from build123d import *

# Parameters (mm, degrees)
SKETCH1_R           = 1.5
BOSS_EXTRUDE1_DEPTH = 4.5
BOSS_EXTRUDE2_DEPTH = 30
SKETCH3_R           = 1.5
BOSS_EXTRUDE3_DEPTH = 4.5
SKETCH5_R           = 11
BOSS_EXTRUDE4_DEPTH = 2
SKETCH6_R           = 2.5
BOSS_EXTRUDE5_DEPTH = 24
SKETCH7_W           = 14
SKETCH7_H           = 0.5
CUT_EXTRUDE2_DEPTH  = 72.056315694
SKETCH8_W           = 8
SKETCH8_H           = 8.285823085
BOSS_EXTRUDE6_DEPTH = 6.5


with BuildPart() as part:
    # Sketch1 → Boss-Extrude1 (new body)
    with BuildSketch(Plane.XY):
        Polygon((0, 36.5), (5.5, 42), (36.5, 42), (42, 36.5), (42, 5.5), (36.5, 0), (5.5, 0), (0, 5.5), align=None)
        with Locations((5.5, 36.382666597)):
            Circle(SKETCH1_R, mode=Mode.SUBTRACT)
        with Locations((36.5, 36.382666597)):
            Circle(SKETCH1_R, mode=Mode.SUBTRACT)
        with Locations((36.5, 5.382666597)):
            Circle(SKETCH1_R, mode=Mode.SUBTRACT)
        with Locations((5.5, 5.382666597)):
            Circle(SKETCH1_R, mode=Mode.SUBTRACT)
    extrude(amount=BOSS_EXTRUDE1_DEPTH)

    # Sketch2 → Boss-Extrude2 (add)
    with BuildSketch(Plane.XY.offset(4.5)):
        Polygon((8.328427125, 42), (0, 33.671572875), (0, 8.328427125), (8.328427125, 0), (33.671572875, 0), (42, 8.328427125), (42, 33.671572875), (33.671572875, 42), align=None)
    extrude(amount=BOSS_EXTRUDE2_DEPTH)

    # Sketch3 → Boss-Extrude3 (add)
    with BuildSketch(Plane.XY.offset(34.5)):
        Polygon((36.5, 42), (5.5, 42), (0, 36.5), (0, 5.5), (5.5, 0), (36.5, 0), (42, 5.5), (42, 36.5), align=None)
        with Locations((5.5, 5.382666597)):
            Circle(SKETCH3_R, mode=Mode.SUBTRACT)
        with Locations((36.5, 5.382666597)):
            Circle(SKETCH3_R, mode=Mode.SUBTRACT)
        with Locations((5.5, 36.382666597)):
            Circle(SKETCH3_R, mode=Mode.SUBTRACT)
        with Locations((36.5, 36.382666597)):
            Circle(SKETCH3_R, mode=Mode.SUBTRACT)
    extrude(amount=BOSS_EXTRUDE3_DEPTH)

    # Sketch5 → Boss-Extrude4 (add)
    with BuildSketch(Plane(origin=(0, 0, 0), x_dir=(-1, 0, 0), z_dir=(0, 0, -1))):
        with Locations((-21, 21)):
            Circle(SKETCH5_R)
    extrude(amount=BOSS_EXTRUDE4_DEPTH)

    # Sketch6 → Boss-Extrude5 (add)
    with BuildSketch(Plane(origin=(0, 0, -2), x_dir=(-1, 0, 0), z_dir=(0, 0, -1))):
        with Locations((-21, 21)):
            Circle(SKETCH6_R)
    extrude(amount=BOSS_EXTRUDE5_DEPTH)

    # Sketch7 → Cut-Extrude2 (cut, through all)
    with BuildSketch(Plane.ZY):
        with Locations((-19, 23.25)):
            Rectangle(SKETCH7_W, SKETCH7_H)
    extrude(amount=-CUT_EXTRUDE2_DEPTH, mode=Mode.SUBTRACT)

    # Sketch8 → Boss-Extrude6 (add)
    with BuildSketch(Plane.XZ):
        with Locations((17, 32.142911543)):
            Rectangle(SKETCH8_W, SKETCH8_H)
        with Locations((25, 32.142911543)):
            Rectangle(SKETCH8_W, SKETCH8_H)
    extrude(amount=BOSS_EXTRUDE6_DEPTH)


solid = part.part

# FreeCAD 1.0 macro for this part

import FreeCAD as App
import Part
import Sketcher

V = App.Vector

doc = App.newDocument("Part")
body = doc.addObject("PartDesign::Body", "Body")

# Sketch on XY plane
sketch1 = body.newObject("Sketcher::SketchObject", "Sketch")
sketch1.AttachmentSupport = (doc.getObject("XY_Plane"), [""])
sketch1.MapMode = "FlatFace"
sketch1.addGeometry(Part.LineSegment(V(5.5, 42, 0), V(0, 36.5, 0)), False)
sketch1.addGeometry(Part.LineSegment(V(0, 36.5, 0), V(0, 5.5, 0)), False)
sketch1.addGeometry(Part.LineSegment(V(0, 5.5, 0), V(5.5, 0, 0)), False)
sketch1.addGeometry(Part.LineSegment(V(5.5, 0, 0), V(36.5, 0, 0)), False)
sketch1.addGeometry(Part.LineSegment(V(36.5, 0, 0), V(42, 5.5, 0)), False)
sketch1.addGeometry(Part.LineSegment(V(42, 5.5, 0), V(42, 36.5, 0)), False)
sketch1.addGeometry(Part.LineSegment(V(42, 36.5, 0), V(36.5, 42, 0)), False)
sketch1.addGeometry(Part.LineSegment(V(36.5, 42, 0), V(5.5, 42, 0)), False)
sketch1.addGeometry(Part.Circle(V(36.5, 5.382667, 0), V(0, 0, 1), 1.5), False)
sketch1.addGeometry(Part.Circle(V(5.5, 5.382667, 0), V(0, 0, 1), 1.5), False)
sketch1.addGeometry(Part.Circle(V(36.5, 36.382667, 0), V(0, 0, 1), 1.5), False)
sketch1.addGeometry(Part.Circle(V(5.5, 36.382667, 0), V(0, 0, 1), 1.5), False)
sketch1.addConstraint(Sketcher.Constraint("Coincident", 0, 2, 1, 1))
sketch1.addConstraint(Sketcher.Constraint("Coincident", 1, 2, 2, 1))
sketch1.addConstraint(Sketcher.Constraint("Coincident", 2, 2, 3, 1))
sketch1.addConstraint(Sketcher.Constraint("Coincident", 3, 2, 4, 1))
sketch1.addConstraint(Sketcher.Constraint("Coincident", 4, 2, 5, 1))
sketch1.addConstraint(Sketcher.Constraint("Coincident", 5, 2, 6, 1))
sketch1.addConstraint(Sketcher.Constraint("Coincident", 6, 2, 7, 1))
sketch1.addConstraint(Sketcher.Constraint("Coincident", 7, 2, 0, 1))
sketch1.addConstraint(Sketcher.Constraint("Vertical", 1))
sketch1.addConstraint(Sketcher.Constraint("Horizontal", 3))
sketch1.addConstraint(Sketcher.Constraint("Vertical", 5))
sketch1.addConstraint(Sketcher.Constraint("Horizontal", 7))
sketch1.addConstraint(Sketcher.Constraint("Equal", 8, 9))
sketch1.addConstraint(Sketcher.Constraint("Equal", 9, 10))
sketch1.addConstraint(Sketcher.Constraint("Equal", 10, 11))
sketch1.addConstraint(Sketcher.Constraint("PointOnObject", 0, 2, -2))
sketch1.addConstraint(Sketcher.Constraint("PointOnObject", 2, 2, -1))
sketch1.addConstraint(Sketcher.Constraint("Perpendicular", 0, 2))
sketch1.addConstraint(Sketcher.Constraint("Perpendicular", 2, 4))
sketch1.addConstraint(Sketcher.Constraint("Perpendicular", 4, 6))
sketch1.addConstraint(Sketcher.Constraint("Horizontal", 8, 3, 9, 3))
sketch1.addConstraint(Sketcher.Constraint("Horizontal", 10, 3, 11, 3))
sketch1.addConstraint(Sketcher.Constraint("Horizontal", 1, 2, 4, 2))
sketch1.addConstraint(Sketcher.Constraint("Horizontal", 0, 2, 5, 2))
sketch1.addConstraint(Sketcher.Constraint("Vertical", 8, 3, 10, 3))
sketch1.addConstraint(Sketcher.Constraint("Vertical", 9, 3, 11, 3))
sketch1.addConstraint(Sketcher.Constraint("Vertical", 11, 3, 2, 2))
sketch1.addConstraint(Sketcher.Constraint("Vertical", 10, 3, 3, 2))
sketch1.addConstraint(Sketcher.Constraint("Vertical", 3, 2, 6, 2))
sketch1.addConstraint(Sketcher.Constraint("Vertical", 2, 2, 7, 2))
sketch1.addConstraint(Sketcher.Constraint("Equal", 7, 1))
sketch1.addConstraint(Sketcher.Constraint("Diameter", 8, 3.0))
sketch1.addConstraint(Sketcher.Constraint("DistanceX", 3, 1, 3, 2, 31.0))
sketch1.addConstraint(Sketcher.Constraint("DistanceX", -1, 1, 4, 2, 42.0))
sketch1.addConstraint(Sketcher.Constraint("DistanceY", 8, 3, 10, 3, 31.0))
sketch1.addConstraint(Sketcher.Constraint("DistanceY", -1, 1, 8, 3, 5.382667))
pad1 = body.newObject("PartDesign::Pad", "Pad")
pad1.Profile = sketch1
pad1.Length = 4.5

# Sketch on XY plane
sketch2 = body.newObject("Sketcher::SketchObject", "Sketch001")
sketch2.AttachmentSupport = (doc.getObject("XY_Plane"), [""])
sketch2.MapMode = "FlatFace"
sketch2.AttachmentOffset = App.Placement(V(0, 0, 4.5), App.Rotation())
sketch2.addGeometry(Part.LineSegment(V(8.328427, 42, 0), V(0, 33.671573, 0)), False)
sketch2.addGeometry(Part.LineSegment(V(0, 33.671573, 0), V(0, 8.328427, 0)), False)
sketch2.addGeometry(Part.LineSegment(V(0, 8.328427, 0), V(8.328427, 0, 0)), False)
sketch2.addGeometry(Part.LineSegment(V(8.328427, 0, 0), V(33.671573, 0, 0)), False)
sketch2.addGeometry(Part.LineSegment(V(33.671573, 0, 0), V(42, 8.328427, 0)), False)
sketch2.addGeometry(Part.LineSegment(V(42, 8.328427, 0), V(42, 33.671573, 0)), False)
sketch2.addGeometry(Part.LineSegment(V(42, 33.671573, 0), V(33.671573, 42, 0)), False)
sketch2.addGeometry(Part.LineSegment(V(33.671573, 42, 0), V(8.328427, 42, 0)), False)
sketch2.addConstraint(Sketcher.Constraint("Coincident", 0, 2, 1, 1))
sketch2.addConstraint(Sketcher.Constraint("Coincident", 1, 2, 2, 1))
sketch2.addConstraint(Sketcher.Constraint("Coincident", 2, 2, 3, 1))
sketch2.addConstraint(Sketcher.Constraint("Coincident", 3, 2, 4, 1))
sketch2.addConstraint(Sketcher.Constraint("Coincident", 4, 2, 5, 1))
sketch2.addConstraint(Sketcher.Constraint("Coincident", 5, 2, 6, 1))
sketch2.addConstraint(Sketcher.Constraint("Coincident", 6, 2, 7, 1))
sketch2.addConstraint(Sketcher.Constraint("Coincident", 7, 2, 0, 1))
sketch2.addConstraint(Sketcher.Constraint("Vertical", 1))
sketch2.addConstraint(Sketcher.Constraint("Horizontal", 3))
sketch2.addConstraint(Sketcher.Constraint("Vertical", 5))
sketch2.addConstraint(Sketcher.Constraint("Horizontal", 7))
sketch2.addConstraint(Sketcher.Constraint("PointOnObject", 0, 2, -2))
sketch2.addConstraint(Sketcher.Constraint("PointOnObject", 2, 2, -1))
sketch2.addConstraint(Sketcher.Constraint("Perpendicular", 0, 2))
sketch2.addConstraint(Sketcher.Constraint("Perpendicular", 2, 4))
sketch2.addConstraint(Sketcher.Constraint("Perpendicular", 4, 6))
sketch2.addConstraint(Sketcher.Constraint("Horizontal", 1, 2, 4, 2))
sketch2.addConstraint(Sketcher.Constraint("Horizontal", 0, 2, 5, 2))
sketch2.addConstraint(Sketcher.Constraint("Vertical", 3, 2, 6, 2))
sketch2.addConstraint(Sketcher.Constraint("Vertical", 2, 2, 7, 2))
sketch2.addConstraint(Sketcher.Constraint("Equal", 7, 1))
sketch2.addConstraint(Sketcher.Constraint("DistanceX", -1, 1, 4, 2, 42.0))
sketch2.addConstraint(Sketcher.Constraint("DistanceX", 3, 1, 3, 2, 25.343146))
pad2 = body.newObject("PartDesign::Pad", "Pad001")
pad2.Profile = sketch2
pad2.Length = 30

# Sketch on XY plane
sketch3 = body.newObject("Sketcher::SketchObject", "Sketch002")
sketch3.AttachmentSupport = (doc.getObject("XY_Plane"), [""])
sketch3.MapMode = "FlatFace"
sketch3.AttachmentOffset = App.Placement(V(0, 0, 34.5), App.Rotation())
sketch3.addGeometry(Part.LineSegment(V(36.5, 42, 0), V(5.5, 42, 0)), False)
sketch3.addGeometry(Part.LineSegment(V(5.5, 42, 0), V(0, 36.5, 0)), False)
sketch3.addGeometry(Part.LineSegment(V(0, 36.5, 0), V(0, 5.5, 0)), False)
sketch3.addGeometry(Part.LineSegment(V(0, 5.5, 0), V(5.5, 0, 0)), False)
sketch3.addGeometry(Part.LineSegment(V(5.5, 0, 0), V(36.5, 0, 0)), False)
sketch3.addGeometry(Part.LineSegment(V(36.5, 0, 0), V(42, 5.5, 0)), False)
sketch3.addGeometry(Part.LineSegment(V(42, 5.5, 0), V(42, 36.5, 0)), False)
sketch3.addGeometry(Part.LineSegment(V(42, 36.5, 0), V(36.5, 42, 0)), False)
sketch3.addGeometry(Part.Circle(V(5.5, 5.382667, 0), V(0, 0, 1), 1.5), False)
sketch3.addGeometry(Part.Circle(V(36.5, 5.382667, 0), V(0, 0, 1), 1.5), False)
sketch3.addGeometry(Part.Circle(V(5.5, 36.382667, 0), V(0, 0, 1), 1.5), False)
sketch3.addGeometry(Part.Circle(V(36.5, 36.382667, 0), V(0, 0, 1), 1.5), False)
sketch3.addConstraint(Sketcher.Constraint("Coincident", 0, 2, 1, 1))
sketch3.addConstraint(Sketcher.Constraint("Coincident", 1, 2, 2, 1))
sketch3.addConstraint(Sketcher.Constraint("Coincident", 2, 2, 3, 1))
sketch3.addConstraint(Sketcher.Constraint("Coincident", 3, 2, 4, 1))
sketch3.addConstraint(Sketcher.Constraint("Coincident", 4, 2, 5, 1))
sketch3.addConstraint(Sketcher.Constraint("Coincident", 5, 2, 6, 1))
sketch3.addConstraint(Sketcher.Constraint("Coincident", 6, 2, 7, 1))
sketch3.addConstraint(Sketcher.Constraint("Coincident", 7, 2, 0, 1))
sketch3.addConstraint(Sketcher.Constraint("Horizontal", 0))
sketch3.addConstraint(Sketcher.Constraint("Vertical", 2))
sketch3.addConstraint(Sketcher.Constraint("Horizontal", 4))
sketch3.addConstraint(Sketcher.Constraint("Vertical", 6))
sketch3.addConstraint(Sketcher.Constraint("Equal", 8, 9))
sketch3.addConstraint(Sketcher.Constraint("Equal", 9, 10))
sketch3.addConstraint(Sketcher.Constraint("Equal", 10, 11))
sketch3.addConstraint(Sketcher.Constraint("PointOnObject", 1, 2, -2))
sketch3.addConstraint(Sketcher.Constraint("PointOnObject", 3, 2, -1))
sketch3.addConstraint(Sketcher.Constraint("Perpendicular", 1, 3))
sketch3.addConstraint(Sketcher.Constraint("Perpendicular", 3, 5))
sketch3.addConstraint(Sketcher.Constraint("Perpendicular", 5, 7))
sketch3.addConstraint(Sketcher.Constraint("Horizontal", 8, 3, 9, 3))
sketch3.addConstraint(Sketcher.Constraint("Horizontal", 10, 3, 11, 3))
sketch3.addConstraint(Sketcher.Constraint("Horizontal", 2, 2, 5, 2))
sketch3.addConstraint(Sketcher.Constraint("Horizontal", 1, 2, 6, 2))
sketch3.addConstraint(Sketcher.Constraint("Vertical", 8, 3, 10, 3))
sketch3.addConstraint(Sketcher.Constraint("Vertical", 9, 3, 11, 3))
sketch3.addConstraint(Sketcher.Constraint("Vertical", 10, 3, 0, 2))
sketch3.addConstraint(Sketcher.Constraint("Vertical", 0, 2, 3, 2))
sketch3.addConstraint(Sketcher.Constraint("Vertical", 11, 3, 4, 2))
sketch3.addConstraint(Sketcher.Constraint("Vertical", 4, 2, 7, 2))
sketch3.addConstraint(Sketcher.Constraint("Equal", 4, 2))
sketch3.addConstraint(Sketcher.Constraint("Diameter", 8, 3.0))
sketch3.addConstraint(Sketcher.Constraint("DistanceX", 0, 2, 0, 1, 31.0))
sketch3.addConstraint(Sketcher.Constraint("DistanceY", -1, 1, 0, 2, 42.0))
sketch3.addConstraint(Sketcher.Constraint("DistanceY", 8, 3, 10, 3, 31.0))
sketch3.addConstraint(Sketcher.Constraint("DistanceY", -1, 1, 8, 3, 5.382667))
pad3 = body.newObject("PartDesign::Pad", "Pad002")
pad3.Profile = sketch3
pad3.Length = 4.5

# Sketch on XY plane
sketch4 = body.newObject("Sketcher::SketchObject", "Sketch003")
sketch4.AttachmentSupport = (doc.getObject("XY_Plane"), [""])
sketch4.MapMode = "FlatFace"
sketch4.addGeometry(Part.Circle(V(21, 21, 0), V(0, 0, 1), 11), False)
sketch4.addConstraint(Sketcher.Constraint("Diameter", 0, 22.0))
sketch4.addConstraint(Sketcher.Constraint("DistanceX", -1, 1, 0, 3, 21.0))
sketch4.addConstraint(Sketcher.Constraint("DistanceY", -1, 1, 0, 3, 21.0))
pad4 = body.newObject("PartDesign::Pad", "Pad003")
pad4.Profile = sketch4
pad4.Length = 2
pad4.Reversed = True

# Sketch on XY plane
sketch5 = body.newObject("Sketcher::SketchObject", "Sketch004")
sketch5.AttachmentSupport = (doc.getObject("XY_Plane"), [""])
sketch5.MapMode = "FlatFace"
sketch5.AttachmentOffset = App.Placement(V(0, 0, -2), App.Rotation())
sketch5.addGeometry(Part.Circle(V(21, 21, 0), V(0, 0, 1), 2.5), False)
sketch5.addConstraint(Sketcher.Constraint("Diameter", 0, 5.0))
sketch5.addConstraint(Sketcher.Constraint("DistanceX", -1, 1, 0, 3, 21.0))
sketch5.addConstraint(Sketcher.Constraint("DistanceY", -1, 1, 0, 3, 21.0))
pad5 = body.newObject("PartDesign::Pad", "Pad004")
pad5.Profile = sketch5
pad5.Length = 24
pad5.Reversed = True

# Sketch on YZ plane
sketch6 = body.newObject("Sketcher::SketchObject", "Sketch005")
sketch6.AttachmentSupport = (doc.getObject("YZ_Plane"), [""])
sketch6.MapMode = "FlatFace"
sketch6.addGeometry(Part.LineSegment(V(23.5, -26, 0), V(23, -26, 0)), False)
sketch6.addGeometry(Part.LineSegment(V(23, -26, 0), V(23, -12, 0)), False)
sketch6.addGeometry(Part.LineSegment(V(23, -12, 0), V(23.5, -12, 0)), False)
sketch6.addGeometry(Part.LineSegment(V(23.5, -12, 0), V(23.5, -26, 0)), False)
sketch6.addConstraint(Sketcher.Constraint("Coincident", 0, 2, 1, 1))
sketch6.addConstraint(Sketcher.Constraint("Coincident", 1, 2, 2, 1))
sketch6.addConstraint(Sketcher.Constraint("Coincident", 2, 2, 3, 1))
sketch6.addConstraint(Sketcher.Constraint("Coincident", 3, 2, 0, 1))
sketch6.addConstraint(Sketcher.Constraint("Horizontal", 0))
sketch6.addConstraint(Sketcher.Constraint("Vertical", 1))
sketch6.addConstraint(Sketcher.Constraint("Horizontal", 2))
sketch6.addConstraint(Sketcher.Constraint("Vertical", 3))
sketch6.addConstraint(Sketcher.Constraint("DistanceY", 1, 1, 1, 2, 14.0))
sketch6.addConstraint(Sketcher.Constraint("DistanceX", 0, 2, 0, 1, 0.5))
sketch6.addConstraint(Sketcher.Constraint("DistanceX", -1, 1, 0, 2, 23.0))
sketch6.addConstraint(Sketcher.Constraint("DistanceY", 0, 2, -1, 1, 26.0))
pocket1 = body.newObject("PartDesign::Pocket", "Pocket")
pocket1.Profile = sketch6
pocket1.Type = "ThroughAll"
pocket1.Reversed = True

# Sketch on XZ plane
sketch7 = body.newObject("Sketcher::SketchObject", "Sketch006")
sketch7.AttachmentSupport = (doc.getObject("XZ_Plane"), [""])
sketch7.MapMode = "FlatFace"
sketch7.addGeometry(Part.LineSegment(V(13, 36.285823, 0), V(13, 28, 0)), False)
sketch7.addGeometry(Part.LineSegment(V(13, 28, 0), V(29, 28, 0)), False)
sketch7.addGeometry(Part.LineSegment(V(29, 28, 0), V(29, 36.285823, 0)), False)
sketch7.addGeometry(Part.LineSegment(V(29, 36.285823, 0), V(13, 36.285823, 0)), False)
sketch7.addConstraint(Sketcher.Constraint("Coincident", 0, 2, 1, 1))
sketch7.addConstraint(Sketcher.Constraint("Coincident", 1, 2, 2, 1))
sketch7.addConstraint(Sketcher.Constraint("Coincident", 2, 2, 3, 1))
sketch7.addConstraint(Sketcher.Constraint("Coincident", 3, 2, 0, 1))
sketch7.addConstraint(Sketcher.Constraint("Vertical", 0))
sketch7.addConstraint(Sketcher.Constraint("Horizontal", 1))
sketch7.addConstraint(Sketcher.Constraint("Vertical", 2))
sketch7.addConstraint(Sketcher.Constraint("Horizontal", 3))
sketch7.addConstraint(Sketcher.Constraint("DistanceX", 1, 1, 1, 2, 16.0))
sketch7.addConstraint(Sketcher.Constraint("DistanceX", -1, 1, 0, 2, 13.0))
sketch7.addConstraint(Sketcher.Constraint("DistanceY", -1, 1, 0, 2, 28.0))
sketch7.addConstraint(Sketcher.Constraint("DistanceY", 0, 2, 0, 1, 8.285823))
pad6 = body.newObject("PartDesign::Pad", "Pad005")
pad6.Profile = sketch7
pad6.Length = 6.5

doc.recompute()
